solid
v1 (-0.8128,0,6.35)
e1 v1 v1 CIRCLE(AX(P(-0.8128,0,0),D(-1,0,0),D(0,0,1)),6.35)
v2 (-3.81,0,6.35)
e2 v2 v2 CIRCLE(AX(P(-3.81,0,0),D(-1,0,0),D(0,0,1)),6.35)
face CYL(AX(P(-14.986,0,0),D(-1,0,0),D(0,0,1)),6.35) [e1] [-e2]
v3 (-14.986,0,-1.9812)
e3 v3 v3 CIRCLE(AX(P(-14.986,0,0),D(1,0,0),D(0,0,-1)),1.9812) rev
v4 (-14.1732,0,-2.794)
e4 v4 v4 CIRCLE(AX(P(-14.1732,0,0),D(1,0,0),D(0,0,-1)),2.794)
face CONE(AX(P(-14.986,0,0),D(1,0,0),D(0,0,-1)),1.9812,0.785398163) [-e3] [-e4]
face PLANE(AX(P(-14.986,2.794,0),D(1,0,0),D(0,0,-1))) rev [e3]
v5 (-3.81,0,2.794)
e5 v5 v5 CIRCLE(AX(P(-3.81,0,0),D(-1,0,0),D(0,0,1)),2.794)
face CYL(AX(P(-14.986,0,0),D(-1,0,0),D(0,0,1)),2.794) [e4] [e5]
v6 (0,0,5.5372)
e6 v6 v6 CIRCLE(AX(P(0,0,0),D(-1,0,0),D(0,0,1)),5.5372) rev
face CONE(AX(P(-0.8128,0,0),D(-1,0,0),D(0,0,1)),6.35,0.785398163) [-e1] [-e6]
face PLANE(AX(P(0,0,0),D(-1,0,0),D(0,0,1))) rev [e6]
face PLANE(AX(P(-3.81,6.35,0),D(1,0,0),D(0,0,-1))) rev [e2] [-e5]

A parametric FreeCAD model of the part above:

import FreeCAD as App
import Part
import Sketcher
from FreeCAD import Vector
Q = App.Units.Quantity


def edges_at(feature, points):
    """Names of the edges that pass closest to the given points."""
    edges = feature.Shape.Edges
    near = lambda p: min(range(len(edges)), key=lambda i: edges[i].distToShape(Part.Vertex(*p))[0])
    return sorted({f"Edge{near(p) + 1}" for p in points})


def add_polygon(sketch, points):
    """Adds a closed chain of lines whose ends are joined by coincident constraints."""
    first, n = sketch.GeometryCount, len(points)
    for a, b in zip(points, points[1:] + points[:1]):
        sketch.addGeometry(Part.LineSegment(App.Vector(*a, 0), App.Vector(*b, 0)), False)
    for i in range(n):
        sketch.addConstraint(Sketcher.Constraint("Coincident", first + i, 2, first + (i + 1) % n, 1))

doc = App.newDocument("Part")
params = doc.addObject("Spreadsheet::Sheet", "Params")
for row, (alias, value) in enumerate([
    ("sketch1_width", "0.15 in"),
    ("sketch1_width2", "0.44 in"),
    ("sketch1_height", "0.25 in"),
    ("sketch1_height2", "0.14 in"),
    ("revolution_angle", "360 deg"),
    ("chamfer_size", "0.032 in"),
], start=1):
    params.set(f"A{row}", alias)
    params.set(f"B{row}", "=" + value)
    params.setAlias(f"B{row}", alias)

body = doc.addObject("PartDesign::Body", "Body")

sketch1 = body.newObject("Sketcher::SketchObject", "Sketch")
sketch1.AttachmentSupport = (doc.getObject("XY_Plane"), [""])
sketch1.MapMode = "FlatFace"
add_polygon(sketch1, [(0, 0), (0, 6.3), (-3.8, 6.3), (-3.8, 2.8), (-15, 2.8), (-15, 0)])
sketch1.addConstraint([
    Sketcher.Constraint("Vertical", 0),
    Sketcher.Constraint("Horizontal", 1),
    Sketcher.Constraint("Vertical", 2),
    Sketcher.Constraint("Horizontal", 3),
    Sketcher.Constraint("Vertical", 4),
    Sketcher.Constraint("Horizontal", 5),
    Sketcher.Constraint("Coincident", 5, 2, -1, 1),
    Sketcher.Constraint("DistanceX", 1, 2, 1, 1, Q("0.15 in")),
    Sketcher.Constraint("DistanceX", 3, 2, 3, 1, Q("0.44 in")),
    Sketcher.Constraint("DistanceY", 0, 1, 0, 2, Q("0.25 in")),
    Sketcher.Constraint("DistanceY", 2, 2, 2, 1, Q("0.14 in")),
])
sketch1.setExpression("Constraints[13]", "Params.sketch1_width")
sketch1.setExpression("Constraints[14]", "Params.sketch1_width2")
sketch1.setExpression("Constraints[15]", "Params.sketch1_height")
sketch1.setExpression("Constraints[16]", "Params.sketch1_height2")
revolution = body.newObject("PartDesign::Revolution", "Revolution")
revolution.Profile = sketch1
revolution.ReferenceAxis = (sketch1, ["H_Axis"])
revolution.setExpression("Angle", "Params.revolution_angle")
doc.recompute()

chamfer = body.newObject("PartDesign::Chamfer", "Chamfer")
chamfer.Base = (revolution, edges_at(revolution, [(-14.986, 0, -2.794), (0, 0, -6.35)]))
chamfer.setExpression("Size", "Params.chamfer_size")

doc.recompute()
